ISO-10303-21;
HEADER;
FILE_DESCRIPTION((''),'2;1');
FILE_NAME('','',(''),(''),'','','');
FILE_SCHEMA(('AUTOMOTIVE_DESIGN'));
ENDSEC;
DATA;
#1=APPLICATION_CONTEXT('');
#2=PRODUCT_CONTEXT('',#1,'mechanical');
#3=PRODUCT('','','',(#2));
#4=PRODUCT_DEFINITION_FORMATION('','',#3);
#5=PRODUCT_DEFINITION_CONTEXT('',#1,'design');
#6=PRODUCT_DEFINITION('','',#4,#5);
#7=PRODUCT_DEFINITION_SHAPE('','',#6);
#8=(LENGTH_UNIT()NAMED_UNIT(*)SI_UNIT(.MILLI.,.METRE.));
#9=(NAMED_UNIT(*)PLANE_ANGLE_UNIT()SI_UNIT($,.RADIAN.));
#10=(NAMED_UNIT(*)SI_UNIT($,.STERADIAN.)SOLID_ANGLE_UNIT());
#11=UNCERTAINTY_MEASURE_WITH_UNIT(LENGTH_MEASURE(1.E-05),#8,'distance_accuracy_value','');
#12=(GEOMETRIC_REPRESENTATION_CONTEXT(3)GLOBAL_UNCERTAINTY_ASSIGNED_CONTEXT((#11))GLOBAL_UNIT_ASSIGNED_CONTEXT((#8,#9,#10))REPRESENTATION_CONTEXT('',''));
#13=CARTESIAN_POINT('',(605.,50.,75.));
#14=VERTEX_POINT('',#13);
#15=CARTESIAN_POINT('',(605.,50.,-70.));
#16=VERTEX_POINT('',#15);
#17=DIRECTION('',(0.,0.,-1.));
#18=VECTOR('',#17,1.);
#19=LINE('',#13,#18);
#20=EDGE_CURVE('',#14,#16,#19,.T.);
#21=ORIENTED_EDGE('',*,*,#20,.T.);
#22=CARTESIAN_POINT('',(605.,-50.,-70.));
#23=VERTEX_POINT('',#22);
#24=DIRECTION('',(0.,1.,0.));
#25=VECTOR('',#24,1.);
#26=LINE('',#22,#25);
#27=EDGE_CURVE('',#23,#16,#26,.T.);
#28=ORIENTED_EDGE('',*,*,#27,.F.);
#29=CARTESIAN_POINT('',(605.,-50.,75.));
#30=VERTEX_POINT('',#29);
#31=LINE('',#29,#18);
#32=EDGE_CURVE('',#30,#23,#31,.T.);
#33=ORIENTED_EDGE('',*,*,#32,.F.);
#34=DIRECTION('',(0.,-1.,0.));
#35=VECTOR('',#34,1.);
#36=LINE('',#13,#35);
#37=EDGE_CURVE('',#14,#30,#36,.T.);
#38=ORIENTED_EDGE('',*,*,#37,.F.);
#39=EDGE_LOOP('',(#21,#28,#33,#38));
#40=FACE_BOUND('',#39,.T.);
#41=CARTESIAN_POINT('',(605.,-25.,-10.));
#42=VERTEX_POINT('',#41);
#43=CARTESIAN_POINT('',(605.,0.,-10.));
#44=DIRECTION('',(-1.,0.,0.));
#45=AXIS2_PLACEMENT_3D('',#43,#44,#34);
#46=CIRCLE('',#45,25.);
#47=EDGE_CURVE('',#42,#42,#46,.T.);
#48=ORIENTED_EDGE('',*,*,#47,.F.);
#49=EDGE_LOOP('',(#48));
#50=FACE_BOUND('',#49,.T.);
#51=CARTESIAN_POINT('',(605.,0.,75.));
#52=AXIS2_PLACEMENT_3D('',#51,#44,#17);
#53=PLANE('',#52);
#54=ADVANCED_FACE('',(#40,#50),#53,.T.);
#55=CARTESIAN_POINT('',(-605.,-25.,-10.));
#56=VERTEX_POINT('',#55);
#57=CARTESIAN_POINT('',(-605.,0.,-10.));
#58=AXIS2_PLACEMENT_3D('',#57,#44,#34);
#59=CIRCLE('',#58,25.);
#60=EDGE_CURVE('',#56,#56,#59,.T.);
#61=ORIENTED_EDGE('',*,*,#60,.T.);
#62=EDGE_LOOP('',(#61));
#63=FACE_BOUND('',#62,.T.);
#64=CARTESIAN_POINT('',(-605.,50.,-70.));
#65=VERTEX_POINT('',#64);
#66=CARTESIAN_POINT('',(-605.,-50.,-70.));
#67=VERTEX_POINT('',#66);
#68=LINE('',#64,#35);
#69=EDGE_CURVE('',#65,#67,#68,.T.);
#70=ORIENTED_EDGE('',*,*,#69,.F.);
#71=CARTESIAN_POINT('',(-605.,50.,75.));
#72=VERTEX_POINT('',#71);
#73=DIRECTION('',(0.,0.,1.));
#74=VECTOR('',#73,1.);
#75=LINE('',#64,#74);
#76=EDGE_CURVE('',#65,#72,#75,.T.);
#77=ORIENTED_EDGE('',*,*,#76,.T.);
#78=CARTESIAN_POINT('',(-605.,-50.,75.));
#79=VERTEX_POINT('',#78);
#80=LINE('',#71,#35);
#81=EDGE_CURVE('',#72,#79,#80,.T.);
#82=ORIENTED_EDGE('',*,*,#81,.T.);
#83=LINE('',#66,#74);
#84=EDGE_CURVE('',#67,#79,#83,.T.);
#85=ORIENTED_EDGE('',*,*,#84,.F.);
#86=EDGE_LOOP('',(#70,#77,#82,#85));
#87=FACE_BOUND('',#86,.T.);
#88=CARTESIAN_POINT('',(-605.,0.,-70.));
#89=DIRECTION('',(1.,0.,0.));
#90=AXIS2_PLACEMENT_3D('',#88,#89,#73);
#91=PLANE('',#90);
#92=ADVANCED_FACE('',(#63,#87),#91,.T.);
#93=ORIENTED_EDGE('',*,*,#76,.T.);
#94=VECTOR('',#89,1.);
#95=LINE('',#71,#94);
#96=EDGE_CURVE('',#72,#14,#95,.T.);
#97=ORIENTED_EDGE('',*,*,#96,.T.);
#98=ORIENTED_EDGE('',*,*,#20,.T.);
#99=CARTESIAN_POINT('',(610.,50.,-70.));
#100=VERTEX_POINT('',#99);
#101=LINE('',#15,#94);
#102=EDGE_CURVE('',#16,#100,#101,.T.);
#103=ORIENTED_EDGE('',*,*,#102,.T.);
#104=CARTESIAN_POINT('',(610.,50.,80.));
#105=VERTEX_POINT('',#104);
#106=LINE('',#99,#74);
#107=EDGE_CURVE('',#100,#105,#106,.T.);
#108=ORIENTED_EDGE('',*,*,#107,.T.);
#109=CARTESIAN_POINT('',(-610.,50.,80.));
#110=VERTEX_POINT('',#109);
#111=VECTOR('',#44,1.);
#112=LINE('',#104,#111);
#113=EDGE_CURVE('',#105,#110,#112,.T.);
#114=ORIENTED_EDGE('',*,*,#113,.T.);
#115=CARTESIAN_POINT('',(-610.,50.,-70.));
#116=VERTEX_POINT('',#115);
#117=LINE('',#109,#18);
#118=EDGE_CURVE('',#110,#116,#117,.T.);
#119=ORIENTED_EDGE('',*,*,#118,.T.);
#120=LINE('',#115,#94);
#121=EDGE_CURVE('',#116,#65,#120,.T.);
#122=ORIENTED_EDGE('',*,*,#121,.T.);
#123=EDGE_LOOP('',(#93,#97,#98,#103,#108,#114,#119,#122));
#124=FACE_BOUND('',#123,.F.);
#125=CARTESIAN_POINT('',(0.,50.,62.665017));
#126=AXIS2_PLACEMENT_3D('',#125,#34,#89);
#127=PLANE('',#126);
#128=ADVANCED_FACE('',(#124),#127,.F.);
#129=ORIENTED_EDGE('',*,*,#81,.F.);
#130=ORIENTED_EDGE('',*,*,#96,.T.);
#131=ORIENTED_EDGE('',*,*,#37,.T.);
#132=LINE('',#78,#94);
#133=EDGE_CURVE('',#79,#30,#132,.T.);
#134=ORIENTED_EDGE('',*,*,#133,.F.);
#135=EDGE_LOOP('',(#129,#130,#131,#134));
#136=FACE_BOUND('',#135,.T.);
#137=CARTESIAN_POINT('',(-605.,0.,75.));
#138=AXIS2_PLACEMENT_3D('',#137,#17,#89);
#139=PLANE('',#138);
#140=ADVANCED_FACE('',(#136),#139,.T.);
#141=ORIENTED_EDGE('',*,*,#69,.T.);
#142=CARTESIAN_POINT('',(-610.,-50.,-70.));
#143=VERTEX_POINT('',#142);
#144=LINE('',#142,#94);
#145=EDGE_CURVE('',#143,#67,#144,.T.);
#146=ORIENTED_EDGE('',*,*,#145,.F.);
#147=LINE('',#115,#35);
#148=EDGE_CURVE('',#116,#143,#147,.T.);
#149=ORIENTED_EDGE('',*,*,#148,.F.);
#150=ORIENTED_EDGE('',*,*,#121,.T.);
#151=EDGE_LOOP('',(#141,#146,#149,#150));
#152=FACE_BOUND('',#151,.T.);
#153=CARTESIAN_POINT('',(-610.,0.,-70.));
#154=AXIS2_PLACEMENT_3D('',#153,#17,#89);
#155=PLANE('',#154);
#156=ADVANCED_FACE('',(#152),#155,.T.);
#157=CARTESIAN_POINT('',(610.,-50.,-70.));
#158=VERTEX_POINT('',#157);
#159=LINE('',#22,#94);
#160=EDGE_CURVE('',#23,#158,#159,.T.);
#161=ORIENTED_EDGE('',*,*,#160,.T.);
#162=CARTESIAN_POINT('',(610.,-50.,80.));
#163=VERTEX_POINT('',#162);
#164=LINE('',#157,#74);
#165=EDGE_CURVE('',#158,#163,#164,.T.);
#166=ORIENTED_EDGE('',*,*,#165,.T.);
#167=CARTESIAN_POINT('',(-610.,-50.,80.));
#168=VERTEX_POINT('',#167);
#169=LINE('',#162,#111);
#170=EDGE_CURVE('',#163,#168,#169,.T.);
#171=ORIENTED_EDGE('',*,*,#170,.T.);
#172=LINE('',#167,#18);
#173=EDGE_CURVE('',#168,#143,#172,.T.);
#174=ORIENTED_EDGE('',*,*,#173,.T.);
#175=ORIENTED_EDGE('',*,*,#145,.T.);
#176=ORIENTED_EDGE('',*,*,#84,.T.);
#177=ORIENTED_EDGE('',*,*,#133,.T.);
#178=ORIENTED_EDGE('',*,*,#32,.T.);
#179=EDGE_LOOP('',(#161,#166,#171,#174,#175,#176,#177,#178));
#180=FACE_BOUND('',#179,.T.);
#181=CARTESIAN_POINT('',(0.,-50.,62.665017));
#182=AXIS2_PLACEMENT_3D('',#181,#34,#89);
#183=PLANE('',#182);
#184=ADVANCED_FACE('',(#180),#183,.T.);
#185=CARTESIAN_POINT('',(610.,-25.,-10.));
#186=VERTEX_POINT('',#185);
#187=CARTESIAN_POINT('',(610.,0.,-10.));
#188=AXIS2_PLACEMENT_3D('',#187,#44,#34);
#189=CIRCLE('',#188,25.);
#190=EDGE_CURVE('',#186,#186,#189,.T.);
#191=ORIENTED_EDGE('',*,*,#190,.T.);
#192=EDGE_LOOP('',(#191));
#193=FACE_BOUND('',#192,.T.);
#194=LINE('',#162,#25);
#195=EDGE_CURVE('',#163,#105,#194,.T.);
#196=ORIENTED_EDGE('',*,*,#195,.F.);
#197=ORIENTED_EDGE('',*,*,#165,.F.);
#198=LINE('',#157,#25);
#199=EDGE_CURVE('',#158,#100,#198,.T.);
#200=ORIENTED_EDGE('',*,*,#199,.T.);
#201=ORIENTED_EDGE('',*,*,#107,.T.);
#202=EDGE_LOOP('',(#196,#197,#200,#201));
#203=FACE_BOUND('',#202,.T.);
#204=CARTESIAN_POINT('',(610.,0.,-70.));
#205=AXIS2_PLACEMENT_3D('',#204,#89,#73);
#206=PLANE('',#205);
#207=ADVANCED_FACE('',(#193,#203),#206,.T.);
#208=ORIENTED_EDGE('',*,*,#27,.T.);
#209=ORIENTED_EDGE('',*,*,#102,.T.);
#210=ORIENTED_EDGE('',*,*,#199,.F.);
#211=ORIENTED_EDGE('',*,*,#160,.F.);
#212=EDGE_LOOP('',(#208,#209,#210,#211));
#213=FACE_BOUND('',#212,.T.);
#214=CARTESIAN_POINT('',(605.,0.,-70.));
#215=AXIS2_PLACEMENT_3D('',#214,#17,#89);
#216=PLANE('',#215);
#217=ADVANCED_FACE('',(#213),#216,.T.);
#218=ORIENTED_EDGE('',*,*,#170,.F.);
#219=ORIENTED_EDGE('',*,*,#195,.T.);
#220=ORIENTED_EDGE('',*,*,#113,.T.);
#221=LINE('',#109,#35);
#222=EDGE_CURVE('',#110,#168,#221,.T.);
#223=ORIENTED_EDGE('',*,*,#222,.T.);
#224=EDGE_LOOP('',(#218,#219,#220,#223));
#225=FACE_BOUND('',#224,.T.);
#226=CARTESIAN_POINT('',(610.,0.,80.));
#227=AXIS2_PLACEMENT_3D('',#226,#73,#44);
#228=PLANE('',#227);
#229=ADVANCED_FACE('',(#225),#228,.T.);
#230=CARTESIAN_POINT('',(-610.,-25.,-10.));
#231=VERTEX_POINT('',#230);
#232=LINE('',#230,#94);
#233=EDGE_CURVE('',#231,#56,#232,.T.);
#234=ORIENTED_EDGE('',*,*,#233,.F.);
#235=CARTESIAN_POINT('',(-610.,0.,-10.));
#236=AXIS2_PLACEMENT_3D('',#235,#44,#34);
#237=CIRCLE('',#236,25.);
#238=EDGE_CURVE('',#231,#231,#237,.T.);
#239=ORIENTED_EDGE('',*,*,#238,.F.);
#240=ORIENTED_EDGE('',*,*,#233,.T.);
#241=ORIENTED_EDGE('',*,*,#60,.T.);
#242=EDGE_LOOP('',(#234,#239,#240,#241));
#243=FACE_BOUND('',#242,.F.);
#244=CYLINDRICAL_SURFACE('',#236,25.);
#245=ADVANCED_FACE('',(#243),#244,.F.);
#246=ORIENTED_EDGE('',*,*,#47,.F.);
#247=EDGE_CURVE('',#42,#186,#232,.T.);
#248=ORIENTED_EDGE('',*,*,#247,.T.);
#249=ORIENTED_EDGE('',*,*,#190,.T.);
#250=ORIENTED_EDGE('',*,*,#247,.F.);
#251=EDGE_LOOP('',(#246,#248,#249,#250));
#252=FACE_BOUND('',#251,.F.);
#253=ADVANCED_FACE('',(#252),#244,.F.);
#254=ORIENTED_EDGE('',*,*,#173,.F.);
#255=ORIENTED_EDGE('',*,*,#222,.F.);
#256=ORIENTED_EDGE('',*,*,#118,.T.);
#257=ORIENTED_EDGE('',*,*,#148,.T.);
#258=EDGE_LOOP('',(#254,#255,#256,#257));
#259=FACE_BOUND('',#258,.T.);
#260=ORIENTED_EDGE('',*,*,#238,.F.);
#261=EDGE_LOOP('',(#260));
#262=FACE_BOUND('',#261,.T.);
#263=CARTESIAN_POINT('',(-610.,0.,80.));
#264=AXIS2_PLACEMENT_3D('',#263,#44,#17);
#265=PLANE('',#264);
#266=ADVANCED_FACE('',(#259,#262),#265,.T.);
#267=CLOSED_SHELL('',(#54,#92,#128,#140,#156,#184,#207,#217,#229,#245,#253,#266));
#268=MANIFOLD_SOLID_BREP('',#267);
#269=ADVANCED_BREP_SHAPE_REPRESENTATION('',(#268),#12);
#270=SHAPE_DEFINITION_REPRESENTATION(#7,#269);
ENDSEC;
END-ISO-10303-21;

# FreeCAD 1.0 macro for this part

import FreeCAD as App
import Part
import Sketcher
Q = App.Units.Quantity


def add_polygon(sketch, points):
    """Adds a closed chain of lines whose ends are joined by coincident constraints."""
    first, n = sketch.GeometryCount, len(points)
    for a, b in zip(points, points[1:] + points[:1]):
        sketch.addGeometry(Part.LineSegment(App.Vector(*a, 0), App.Vector(*b, 0)), False)
    for i in range(n):
        sketch.addConstraint(Sketcher.Constraint("Coincident", first + i, 2, first + (i + 1) % n, 1))

doc = App.newDocument("Part")
body = doc.addObject("PartDesign::Body", "Body")

# Sketch on XZ plane
sketch1 = doc.addObject("Sketcher::SketchObject", "Sketch")
body.addObject(sketch1)
sketch1.AttachmentSupport = (doc.XZ_Plane, [""])
sketch1.MapMode = "FlatFace"
add_polygon(sketch1, [(610, 80), (-610, 80), (-610, -70), (-605, -70), (-605, 75), (605, 75), (605, -70), (610, -70)])  # lines 0-7
sketch1.addConstraint(Sketcher.Constraint("Horizontal", 0))
sketch1.addConstraint(Sketcher.Constraint("Vertical", 1))
sketch1.addConstraint(Sketcher.Constraint("Horizontal", 2))
sketch1.addConstraint(Sketcher.Constraint("Vertical", 3))
sketch1.addConstraint(Sketcher.Constraint("Horizontal", 4))
sketch1.addConstraint(Sketcher.Constraint("Vertical", 5))
sketch1.addConstraint(Sketcher.Constraint("Horizontal", 6))
sketch1.addConstraint(Sketcher.Constraint("Vertical", 7))
sketch1.addConstraint(Sketcher.Constraint("Symmetric", 2, 2, 5, 2, -2))
sketch1.addConstraint(Sketcher.Constraint("Equal", 2, 6))
sketch1.addConstraint(Sketcher.Constraint("DistanceX", 0, 2, 0, 1, Q("1220 mm")))
sketch1.addConstraint(Sketcher.Constraint("DistanceX", 2, 1, 2, 2, Q("5 mm")))
sketch1.addConstraint(Sketcher.Constraint("DistanceY", 1, 2, 1, 1, Q("150 mm")))
sketch1.addConstraint(Sketcher.Constraint("DistanceY", 3, 1, 3, 2, Q("145 mm")))
sketch1.addConstraint(Sketcher.Constraint("DistanceY", -1, 1, 0, 2, Q("80 mm")))
pad1 = doc.addObject("PartDesign::Pad", "Pad")
body.addObject(pad1)
pad1.Profile = sketch1
pad1.Length = 100
pad1.Midplane = True

# Sketch on YZ plane
sketch2 = doc.addObject("Sketcher::SketchObject", "Sketch001")
body.addObject(sketch2)
sketch2.AttachmentSupport = (doc.YZ_Plane, [""])
sketch2.MapMode = "FlatFace"
sketch2.AttachmentOffset = App.Placement(App.Vector(0, 0, -610), App.Rotation())
sketch2.addGeometry(Part.Circle(App.Vector(0, -10, 0), App.Vector(0, 0, 1), 25), False)
sketch2.addConstraint(Sketcher.Constraint("PointOnObject", 0, 3, -2))
sketch2.addConstraint(Sketcher.Constraint("Diameter", 0, Q("50 mm")))
sketch2.addConstraint(Sketcher.Constraint("DistanceY", 0, 3, -1, 1, Q("10 mm")))
pocket1 = doc.addObject("PartDesign::Pocket", "Pocket")
body.addObject(pocket1)
pocket1.Profile = sketch2
pocket1.Type = "ThroughAll"
pocket1.Reversed = True

doc.recompute()
